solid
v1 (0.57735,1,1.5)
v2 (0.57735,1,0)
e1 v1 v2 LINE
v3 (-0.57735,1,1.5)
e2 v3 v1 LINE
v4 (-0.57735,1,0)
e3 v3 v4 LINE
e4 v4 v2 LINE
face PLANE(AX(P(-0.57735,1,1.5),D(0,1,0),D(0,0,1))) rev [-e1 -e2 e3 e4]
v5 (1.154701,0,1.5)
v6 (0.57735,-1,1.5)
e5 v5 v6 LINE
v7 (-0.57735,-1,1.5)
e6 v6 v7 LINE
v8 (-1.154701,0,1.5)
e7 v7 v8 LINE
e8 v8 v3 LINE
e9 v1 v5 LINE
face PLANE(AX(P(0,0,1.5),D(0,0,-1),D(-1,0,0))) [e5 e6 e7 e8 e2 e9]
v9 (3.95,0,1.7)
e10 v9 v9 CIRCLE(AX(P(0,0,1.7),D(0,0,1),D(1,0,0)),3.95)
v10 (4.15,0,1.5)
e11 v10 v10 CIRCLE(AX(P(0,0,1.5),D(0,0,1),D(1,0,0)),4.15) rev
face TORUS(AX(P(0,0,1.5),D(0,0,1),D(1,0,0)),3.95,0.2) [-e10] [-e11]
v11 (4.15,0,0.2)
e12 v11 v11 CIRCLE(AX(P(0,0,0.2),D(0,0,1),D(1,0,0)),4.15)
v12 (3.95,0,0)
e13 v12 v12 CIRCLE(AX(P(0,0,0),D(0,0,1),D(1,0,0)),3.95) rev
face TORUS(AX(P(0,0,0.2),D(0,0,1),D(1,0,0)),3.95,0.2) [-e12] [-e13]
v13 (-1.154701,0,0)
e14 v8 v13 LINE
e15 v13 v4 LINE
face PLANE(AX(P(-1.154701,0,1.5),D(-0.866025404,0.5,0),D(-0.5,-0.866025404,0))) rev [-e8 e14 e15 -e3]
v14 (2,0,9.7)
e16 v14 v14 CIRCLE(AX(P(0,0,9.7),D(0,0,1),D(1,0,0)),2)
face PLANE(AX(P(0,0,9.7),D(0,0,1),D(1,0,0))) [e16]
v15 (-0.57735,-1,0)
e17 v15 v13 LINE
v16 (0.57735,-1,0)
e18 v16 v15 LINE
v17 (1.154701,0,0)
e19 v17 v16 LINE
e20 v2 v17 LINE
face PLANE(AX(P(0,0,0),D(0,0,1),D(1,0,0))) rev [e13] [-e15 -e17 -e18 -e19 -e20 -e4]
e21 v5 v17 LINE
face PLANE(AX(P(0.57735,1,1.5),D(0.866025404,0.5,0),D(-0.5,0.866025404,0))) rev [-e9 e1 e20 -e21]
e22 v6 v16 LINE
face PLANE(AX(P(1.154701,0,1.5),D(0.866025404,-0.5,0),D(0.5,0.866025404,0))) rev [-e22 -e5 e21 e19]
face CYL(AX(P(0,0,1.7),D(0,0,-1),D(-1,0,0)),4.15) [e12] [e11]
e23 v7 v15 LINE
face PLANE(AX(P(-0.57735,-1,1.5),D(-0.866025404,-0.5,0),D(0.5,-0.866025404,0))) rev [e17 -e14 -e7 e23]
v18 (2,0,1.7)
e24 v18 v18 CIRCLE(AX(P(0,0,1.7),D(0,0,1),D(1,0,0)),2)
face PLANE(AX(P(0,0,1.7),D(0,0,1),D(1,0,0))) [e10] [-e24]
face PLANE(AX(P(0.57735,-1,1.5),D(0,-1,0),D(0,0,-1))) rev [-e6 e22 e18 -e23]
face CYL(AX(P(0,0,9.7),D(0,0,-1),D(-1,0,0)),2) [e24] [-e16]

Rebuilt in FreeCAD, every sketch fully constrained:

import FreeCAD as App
import Part
import Sketcher

V = App.Vector
Q = App.Units.Quantity


def edges_at(feature, points):
    """Names of the edges that pass closest to the given points."""
    edges = feature.Shape.Edges
    near = lambda p: min(range(len(edges)), key=lambda i: edges[i].distToShape(Part.Vertex(*p))[0])
    return sorted({f"Edge{near(p) + 1}" for p in points})

doc = App.newDocument("Part")
params = doc.addObject("Spreadsheet::Sheet", "Params")
for row, (alias, value) in enumerate([
    ("sketch1_diameter", "8.3 mm"),
    ("pad1_length", "1.7 mm"),
    ("sketch2_diameter", "4 mm"),
    ("pad2_length", "8 mm"),
    ("fillet_radius", "0.2 mm"),
    ("pocket1_length", "1.5 mm"),
], start=1):
    params.set(f"A{row}", alias)
    params.set(f"B{row}", "=" + value)
    params.setAlias(f"B{row}", alias)

body = doc.addObject("PartDesign::Body", "Body")

# Sketch on XY plane
sketch1 = doc.addObject("Sketcher::SketchObject", "Sketch")
body.addObject(sketch1)
sketch1.AttachmentSupport = (doc.XY_Plane, [""])
sketch1.MapMode = "FlatFace"
sketch1.addGeometry(Part.Circle(V(0, 0, 0), V(0, 0, 1), 4.15), False)
sketch1.addConstraint(Sketcher.Constraint("Coincident", 0, 3, -1, 1))
sketch1.addConstraint(Sketcher.Constraint("Diameter", 0, Q("8.3 mm")))
sketch1.setExpression("Constraints[1]", "Params.sketch1_diameter")
pad1 = doc.addObject("PartDesign::Pad", "Pad")
body.addObject(pad1)
pad1.Profile = sketch1
pad1.setExpression("Length", "Params.pad1_length")

# Sketch on XY plane
sketch2 = doc.addObject("Sketcher::SketchObject", "Sketch001")
body.addObject(sketch2)
sketch2.AttachmentSupport = (doc.XY_Plane, [""])
sketch2.MapMode = "FlatFace"
sketch2.AttachmentOffset = App.Placement(V(0, 0, 1.7), App.Rotation())
sketch2.addGeometry(Part.Circle(V(0, 0, 0), V(0, 0, 1), 2), False)
sketch2.addConstraint(Sketcher.Constraint("Coincident", 0, 3, -1, 1))
sketch2.addConstraint(Sketcher.Constraint("Diameter", 0, Q("4 mm")))
sketch2.setExpression("Constraints[1]", "Params.sketch2_diameter")
pad2 = doc.addObject("PartDesign::Pad", "Pad001")
body.addObject(pad2)
pad2.Profile = sketch2
pad2.setExpression("Length", "Params.pad2_length")
doc.recompute()

fillet = doc.addObject("PartDesign::Fillet", "Fillet")
body.addObject(fillet)
fillet.Base = (pad2, edges_at(pad2, [(-4.15, 0, 0), (-4.15, 0, 1.7)]))
fillet.setExpression("Radius", "Params.fillet_radius")

# Sketch on XY plane
sketch3 = doc.addObject("Sketcher::SketchObject", "Sketch002")
body.addObject(sketch3)
sketch3.AttachmentSupport = (doc.XY_Plane, [""])
sketch3.MapMode = "FlatFace"
sketch3.addGeometry(Part.LineSegment(V(-1.154701, 0, 0), V(-0.57735, 1, 0)), False)
sketch3.addGeometry(Part.LineSegment(V(-0.57735, 1, 0), V(0.57735, 1, 0)), False)
sketch3.addGeometry(Part.LineSegment(V(0.57735, 1, 0), V(1.154701, 0, 0)), False)
sketch3.addGeometry(Part.LineSegment(V(1.154701, 0, 0), V(0.57735, -1, 0)), False)
sketch3.addGeometry(Part.LineSegment(V(0.57735, -1, 0), V(-0.57735, -1, 0)), False)
sketch3.addGeometry(Part.LineSegment(V(-0.57735, -1, 0), V(-1.154701, 0, 0)), False)
sketch3.addConstraint(Sketcher.Constraint("Coincident", 0, 2, 1, 1))
sketch3.addConstraint(Sketcher.Constraint("Coincident", 1, 2, 2, 1))
sketch3.addConstraint(Sketcher.Constraint("Coincident", 2, 2, 3, 1))
sketch3.addConstraint(Sketcher.Constraint("Coincident", 3, 2, 4, 1))
sketch3.addConstraint(Sketcher.Constraint("Coincident", 4, 2, 5, 1))
sketch3.addConstraint(Sketcher.Constraint("Coincident", 5, 2, 0, 1))
sketch3.addConstraint(Sketcher.Constraint("Horizontal", 1))
sketch3.addConstraint(Sketcher.Constraint("Horizontal", 4))
sketch3.addConstraint(Sketcher.Constraint("Symmetric", 0, 2, 3, 2, -1, 1))
sketch3.addConstraint(Sketcher.Constraint("Symmetric", 2, 2, 5, 2, -1, 1))
sketch3.addConstraint(Sketcher.Constraint("PointOnObject", 2, 2, -1))
sketch3.addConstraint(Sketcher.Constraint("Parallel", 2, 5))
sketch3.addConstraint(Sketcher.Constraint("Vertical", 1, 2, 3, 2))
sketch3.addConstraint(Sketcher.Constraint("Angle", 0, Q("60 deg")))
sketch3.addConstraint(Sketcher.Constraint("DistanceY", -1, 1, 0, 2, Q("1 mm")))
sketch3.addConstraint(Sketcher.Constraint("DistanceX", 1, 1, 1, 2, Q("1.154701 mm")))
pocket1 = doc.addObject("PartDesign::Pocket", "Pocket")
body.addObject(pocket1)
pocket1.Profile = sketch3
pocket1.setExpression("Length", "Params.pocket1_length")
pocket1.Reversed = True

doc.recompute()
